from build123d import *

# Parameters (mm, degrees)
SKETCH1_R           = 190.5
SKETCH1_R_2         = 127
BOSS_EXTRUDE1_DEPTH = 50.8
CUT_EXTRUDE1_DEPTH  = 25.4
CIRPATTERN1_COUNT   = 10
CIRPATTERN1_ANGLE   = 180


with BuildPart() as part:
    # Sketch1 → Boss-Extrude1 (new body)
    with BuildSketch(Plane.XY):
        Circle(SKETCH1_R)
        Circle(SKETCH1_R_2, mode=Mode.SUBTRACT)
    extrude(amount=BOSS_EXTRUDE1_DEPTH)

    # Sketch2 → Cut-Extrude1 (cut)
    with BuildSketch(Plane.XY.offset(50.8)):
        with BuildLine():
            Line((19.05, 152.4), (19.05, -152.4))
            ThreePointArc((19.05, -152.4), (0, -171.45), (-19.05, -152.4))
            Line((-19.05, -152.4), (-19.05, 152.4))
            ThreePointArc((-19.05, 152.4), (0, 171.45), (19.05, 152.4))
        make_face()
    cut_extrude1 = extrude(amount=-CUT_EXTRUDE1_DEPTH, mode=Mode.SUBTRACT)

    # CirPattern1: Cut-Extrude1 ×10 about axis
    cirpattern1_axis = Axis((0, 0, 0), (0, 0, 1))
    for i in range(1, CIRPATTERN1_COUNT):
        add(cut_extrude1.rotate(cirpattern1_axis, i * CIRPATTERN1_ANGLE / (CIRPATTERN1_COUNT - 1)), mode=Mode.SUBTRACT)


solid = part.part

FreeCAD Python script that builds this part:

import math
import FreeCAD as App
import Part
import Sketcher
Q = App.Units.Quantity

doc = App.newDocument("Part")
body = doc.addObject("PartDesign::Body", "Body")

# Sketch on XY plane
sketch1 = body.newObject("Sketcher::SketchObject", "Sketch")
sketch1.AttachmentSupport = (doc.getObject("XY_Plane"), [""])
sketch1.MapMode = "FlatFace"
sketch1.addGeometry(Part.Circle(App.Vector(0, 0, 0), App.Vector(0, 0, 1), 190.5), False)
sketch1.addGeometry(Part.Circle(App.Vector(0, 0, 0), App.Vector(0, 0, 1), 127), False)
sketch1.addConstraint(Sketcher.Constraint("Coincident", 0, 3, -1, 1))
sketch1.addConstraint(Sketcher.Constraint("Coincident", 1, 3, -1, 1))
sketch1.addConstraint(Sketcher.Constraint("Diameter", 0, Q("15 in")))
sketch1.addConstraint(Sketcher.Constraint("Diameter", 1, Q("10 in")))
pad1 = body.newObject("PartDesign::Pad", "Pad")
pad1.Profile = sketch1
pad1.Length = Q("2 in")

# Sketch on XY plane
sketch2 = body.newObject("Sketcher::SketchObject", "Sketch001")
sketch2.AttachmentSupport = (doc.getObject("XY_Plane"), [""])
sketch2.MapMode = "FlatFace"
sketch2.AttachmentOffset = App.Placement(App.Vector(0, 0, 2 * 25.4), App.Rotation())
sketch2.addGeometry(Part.LineSegment(App.Vector(19.05, -152.4, 0), App.Vector(19.05, 152.4, 0)), False)
sketch2.addGeometry(Part.ArcOfCircle(Part.Circle(App.Vector(0, 152.4, 0), App.Vector(0, 0, 1), 19.05), math.radians(0), math.radians(180)), False)
sketch2.addGeometry(Part.LineSegment(App.Vector(-19.05, 152.4, 0), App.Vector(-19.05, -152.4, 0)), False)
sketch2.addGeometry(Part.ArcOfCircle(Part.Circle(App.Vector(0, -152.4, 0), App.Vector(0, 0, 1), 19.05), math.radians(180), math.radians(360)), False)
sketch2.addConstraint(Sketcher.Constraint("Tangent", 0, 2, 1, 1))
sketch2.addConstraint(Sketcher.Constraint("Tangent", 1, 2, 2, 1))
sketch2.addConstraint(Sketcher.Constraint("Tangent", 2, 2, 3, 1))
sketch2.addConstraint(Sketcher.Constraint("Tangent", 3, 2, 0, 1))
sketch2.addConstraint(Sketcher.Constraint("Vertical", 0))
sketch2.addConstraint(Sketcher.Constraint("Vertical", 2))
sketch2.addConstraint(Sketcher.Constraint("Symmetric", 1, 3, 3, 3, -1, 1))
sketch2.addConstraint(Sketcher.Constraint("DistanceY", 0, 1, 0, 2, Q("12 in")))
sketch2.addConstraint(Sketcher.Constraint("Radius", 1, Q("0.75 in")))
pocket1 = body.newObject("PartDesign::Pocket", "Pocket")
pocket1.Profile = sketch2
pocket1.Length = Q("1 in")
doc.recompute()

polarpattern = body.newObject("PartDesign::PolarPattern", "PolarPattern")
polarpattern.Originals = [pocket1]
polarpattern.Axis = (doc.getObject("Z_Axis"), [""])
polarpattern.Angle = 180
polarpattern.Occurrences = 10
body.Tip = polarpattern

doc.recompute()
